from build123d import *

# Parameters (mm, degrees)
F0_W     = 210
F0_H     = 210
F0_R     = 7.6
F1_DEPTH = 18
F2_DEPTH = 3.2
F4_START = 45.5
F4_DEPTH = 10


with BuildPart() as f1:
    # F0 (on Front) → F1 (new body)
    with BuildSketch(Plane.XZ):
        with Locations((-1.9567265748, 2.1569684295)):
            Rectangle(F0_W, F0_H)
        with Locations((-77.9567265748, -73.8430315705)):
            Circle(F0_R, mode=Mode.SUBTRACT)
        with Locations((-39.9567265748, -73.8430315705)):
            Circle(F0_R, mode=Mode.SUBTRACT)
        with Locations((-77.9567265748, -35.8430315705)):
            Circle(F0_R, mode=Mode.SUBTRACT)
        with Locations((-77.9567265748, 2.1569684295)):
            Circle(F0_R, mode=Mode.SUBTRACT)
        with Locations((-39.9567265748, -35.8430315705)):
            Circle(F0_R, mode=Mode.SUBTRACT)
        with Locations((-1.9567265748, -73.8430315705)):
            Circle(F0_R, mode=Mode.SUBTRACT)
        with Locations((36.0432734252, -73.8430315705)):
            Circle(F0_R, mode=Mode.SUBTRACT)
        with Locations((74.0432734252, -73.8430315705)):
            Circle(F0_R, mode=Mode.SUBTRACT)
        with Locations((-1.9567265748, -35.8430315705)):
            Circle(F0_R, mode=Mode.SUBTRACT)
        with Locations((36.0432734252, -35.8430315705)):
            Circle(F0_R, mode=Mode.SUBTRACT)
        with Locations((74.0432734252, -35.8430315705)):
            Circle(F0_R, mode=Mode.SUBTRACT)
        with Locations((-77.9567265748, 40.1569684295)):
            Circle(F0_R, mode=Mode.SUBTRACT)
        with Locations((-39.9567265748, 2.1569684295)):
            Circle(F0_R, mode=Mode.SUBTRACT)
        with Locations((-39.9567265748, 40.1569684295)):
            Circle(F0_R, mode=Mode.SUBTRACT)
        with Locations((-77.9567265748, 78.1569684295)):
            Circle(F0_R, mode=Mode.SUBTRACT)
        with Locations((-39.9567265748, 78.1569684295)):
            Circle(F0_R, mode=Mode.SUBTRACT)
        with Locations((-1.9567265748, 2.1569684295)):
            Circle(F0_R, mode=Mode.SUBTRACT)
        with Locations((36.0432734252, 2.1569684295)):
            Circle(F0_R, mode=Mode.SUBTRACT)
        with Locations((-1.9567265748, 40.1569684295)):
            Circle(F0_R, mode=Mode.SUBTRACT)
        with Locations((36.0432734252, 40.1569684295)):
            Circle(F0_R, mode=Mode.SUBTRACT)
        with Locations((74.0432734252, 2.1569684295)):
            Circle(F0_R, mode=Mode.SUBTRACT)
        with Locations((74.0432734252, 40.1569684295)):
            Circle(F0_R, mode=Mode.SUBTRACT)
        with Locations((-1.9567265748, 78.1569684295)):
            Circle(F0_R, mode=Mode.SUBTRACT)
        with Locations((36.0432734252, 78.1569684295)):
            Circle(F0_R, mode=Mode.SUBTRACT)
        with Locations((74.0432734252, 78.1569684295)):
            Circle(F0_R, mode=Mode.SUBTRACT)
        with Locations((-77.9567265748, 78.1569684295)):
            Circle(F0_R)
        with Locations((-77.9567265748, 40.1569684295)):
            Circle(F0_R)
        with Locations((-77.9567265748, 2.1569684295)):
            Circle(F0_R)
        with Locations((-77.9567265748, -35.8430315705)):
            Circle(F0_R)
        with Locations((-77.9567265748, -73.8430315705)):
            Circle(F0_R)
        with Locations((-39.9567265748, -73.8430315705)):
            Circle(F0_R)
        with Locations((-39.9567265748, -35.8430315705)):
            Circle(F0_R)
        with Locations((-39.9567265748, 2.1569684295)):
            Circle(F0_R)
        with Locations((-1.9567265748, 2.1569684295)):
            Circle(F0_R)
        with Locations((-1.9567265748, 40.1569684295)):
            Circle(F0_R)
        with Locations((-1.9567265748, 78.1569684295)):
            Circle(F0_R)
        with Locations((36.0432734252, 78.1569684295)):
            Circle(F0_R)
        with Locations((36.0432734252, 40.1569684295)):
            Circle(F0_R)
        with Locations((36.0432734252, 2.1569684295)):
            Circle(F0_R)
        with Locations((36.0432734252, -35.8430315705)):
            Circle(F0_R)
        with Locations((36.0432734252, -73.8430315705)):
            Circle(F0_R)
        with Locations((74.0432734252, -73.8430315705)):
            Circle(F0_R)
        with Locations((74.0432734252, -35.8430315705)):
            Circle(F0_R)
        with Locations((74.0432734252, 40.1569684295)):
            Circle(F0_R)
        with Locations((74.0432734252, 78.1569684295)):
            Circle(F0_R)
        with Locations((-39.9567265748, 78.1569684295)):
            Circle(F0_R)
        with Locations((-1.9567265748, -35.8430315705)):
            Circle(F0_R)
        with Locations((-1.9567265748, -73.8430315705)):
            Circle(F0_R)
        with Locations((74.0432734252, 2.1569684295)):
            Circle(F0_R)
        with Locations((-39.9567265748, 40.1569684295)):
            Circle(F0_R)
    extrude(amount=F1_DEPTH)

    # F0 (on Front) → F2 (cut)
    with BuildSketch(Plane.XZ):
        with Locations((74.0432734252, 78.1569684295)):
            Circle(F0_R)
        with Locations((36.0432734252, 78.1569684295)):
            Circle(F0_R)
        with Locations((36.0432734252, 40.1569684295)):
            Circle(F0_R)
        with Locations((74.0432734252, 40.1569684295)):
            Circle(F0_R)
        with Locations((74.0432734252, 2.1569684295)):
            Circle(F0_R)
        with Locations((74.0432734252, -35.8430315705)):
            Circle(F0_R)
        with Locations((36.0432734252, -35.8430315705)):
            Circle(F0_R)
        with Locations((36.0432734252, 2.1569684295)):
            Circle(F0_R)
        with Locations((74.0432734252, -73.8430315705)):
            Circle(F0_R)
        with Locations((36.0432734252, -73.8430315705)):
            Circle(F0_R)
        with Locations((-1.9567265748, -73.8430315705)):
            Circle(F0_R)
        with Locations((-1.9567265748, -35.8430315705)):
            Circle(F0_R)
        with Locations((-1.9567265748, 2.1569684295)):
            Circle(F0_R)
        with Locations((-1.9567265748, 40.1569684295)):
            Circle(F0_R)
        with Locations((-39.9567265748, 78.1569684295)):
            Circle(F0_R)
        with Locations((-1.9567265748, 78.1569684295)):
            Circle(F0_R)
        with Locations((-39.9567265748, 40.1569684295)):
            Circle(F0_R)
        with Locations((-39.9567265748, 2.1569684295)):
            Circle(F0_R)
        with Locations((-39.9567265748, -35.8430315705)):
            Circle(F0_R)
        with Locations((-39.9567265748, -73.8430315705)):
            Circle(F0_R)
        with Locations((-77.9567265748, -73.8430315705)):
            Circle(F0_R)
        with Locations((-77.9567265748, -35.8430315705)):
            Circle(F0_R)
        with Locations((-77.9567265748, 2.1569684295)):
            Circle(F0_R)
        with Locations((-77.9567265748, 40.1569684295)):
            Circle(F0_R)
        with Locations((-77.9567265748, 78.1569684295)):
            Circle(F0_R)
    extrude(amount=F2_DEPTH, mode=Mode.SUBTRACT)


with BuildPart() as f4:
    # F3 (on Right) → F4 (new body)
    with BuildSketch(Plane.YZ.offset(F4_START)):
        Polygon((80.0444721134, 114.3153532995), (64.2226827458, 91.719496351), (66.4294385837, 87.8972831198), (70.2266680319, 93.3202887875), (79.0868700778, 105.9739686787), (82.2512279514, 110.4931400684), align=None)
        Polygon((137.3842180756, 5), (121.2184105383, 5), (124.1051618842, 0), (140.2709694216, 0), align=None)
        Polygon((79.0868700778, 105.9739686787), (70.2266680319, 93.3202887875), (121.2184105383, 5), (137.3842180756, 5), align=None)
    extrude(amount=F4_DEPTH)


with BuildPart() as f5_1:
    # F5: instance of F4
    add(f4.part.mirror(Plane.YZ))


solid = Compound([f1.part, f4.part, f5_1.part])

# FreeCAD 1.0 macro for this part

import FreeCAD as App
import Part
import Sketcher
Q = App.Units.Quantity


def add_polygon(sketch, points):
    """Adds a closed chain of lines whose ends are joined by coincident constraints."""
    first, n = sketch.GeometryCount, len(points)
    for a, b in zip(points, points[1:] + points[:1]):
        sketch.addGeometry(Part.LineSegment(App.Vector(*a, 0), App.Vector(*b, 0)), False)
    for i in range(n):
        sketch.addConstraint(Sketcher.Constraint("Coincident", first + i, 2, first + (i + 1) % n, 1))

doc = App.newDocument("Part")
body = doc.addObject("PartDesign::Body", "Body")

# Sketch on XZ plane
sketch1 = body.newObject("Sketcher::SketchObject", "Sketch")
sketch1.AttachmentSupport = (doc.getObject("XZ_Plane"), [""])
sketch1.MapMode = "FlatFace"
add_polygon(sketch1, [(-107, 107), (-107, -103), (103, -103), (103, 107)])  # lines 0-3
sketch1.addConstraint([
    Sketcher.Constraint("Vertical", 0),
    Sketcher.Constraint("Horizontal", 1),
    Sketcher.Constraint("Vertical", 2),
    Sketcher.Constraint("Horizontal", 3),
    Sketcher.Constraint("Equal", 3, 0),
    Sketcher.Constraint("DistanceX", 1, 1, 1, 2, 210.0),
    Sketcher.Constraint("DistanceY", 0, 2, -1, 1, 102.843032),
    Sketcher.Constraint("DistanceX", 0, 2, -1, 1, 106.956727),
])
pad1 = body.newObject("PartDesign::Pad", "Pad")
pad1.Profile = sketch1
pad1.Length = 18

# Sketch on XZ plane
sketch2 = body.newObject("Sketcher::SketchObject", "Sketch001")
sketch2.AttachmentSupport = (doc.getObject("XZ_Plane"), [""])
sketch2.MapMode = "FlatFace"
sketch2.addGeometry([
    Part.Circle(App.Vector(74, 78, 0), App.Vector(0, 0, 1), 8),  # 0
    Part.Circle(App.Vector(36, 78, 0), App.Vector(0, 0, 1), 8),  # 1
    Part.Circle(App.Vector(36, 40, 0), App.Vector(0, 0, 1), 8),  # 2
    Part.Circle(App.Vector(74, 40, 0), App.Vector(0, 0, 1), 8),  # 3
    Part.Circle(App.Vector(74, 2, 0), App.Vector(0, 0, 1), 8),  # 4
    Part.Circle(App.Vector(74, -36, 0), App.Vector(0, 0, 1), 8),  # 5
    Part.Circle(App.Vector(36, -36, 0), App.Vector(0, 0, 1), 8),  # 6
    Part.Circle(App.Vector(36, 2, 0), App.Vector(0, 0, 1), 8),  # 7
    Part.Circle(App.Vector(74, -74, 0), App.Vector(0, 0, 1), 8),  # 8
    Part.Circle(App.Vector(36, -74, 0), App.Vector(0, 0, 1), 8),  # 9
    Part.Circle(App.Vector(-2, -74, 0), App.Vector(0, 0, 1), 8),  # 10
    Part.Circle(App.Vector(-2, -36, 0), App.Vector(0, 0, 1), 8),  # 11
    Part.Circle(App.Vector(-2, 2, 0), App.Vector(0, 0, 1), 8),  # 12
    Part.Circle(App.Vector(-2, 40, 0), App.Vector(0, 0, 1), 8),  # 13
    Part.Circle(App.Vector(-40, 78, 0), App.Vector(0, 0, 1), 8),  # 14
    Part.Circle(App.Vector(-2, 78, 0), App.Vector(0, 0, 1), 8),  # 15
    Part.Circle(App.Vector(-40, 40, 0), App.Vector(0, 0, 1), 8),  # 16
    Part.Circle(App.Vector(-40, 2, 0), App.Vector(0, 0, 1), 8),  # 17
    Part.Circle(App.Vector(-40, -36, 0), App.Vector(0, 0, 1), 8),  # 18
    Part.Circle(App.Vector(-40, -74, 0), App.Vector(0, 0, 1), 8),  # 19
    Part.Circle(App.Vector(-78, -74, 0), App.Vector(0, 0, 1), 8),  # 20
    Part.Circle(App.Vector(-78, -36, 0), App.Vector(0, 0, 1), 8),  # 21
    Part.Circle(App.Vector(-78, 2, 0), App.Vector(0, 0, 1), 8),  # 22
    Part.Circle(App.Vector(-78, 40, 0), App.Vector(0, 0, 1), 8),  # 23
    Part.Circle(App.Vector(-78, 78, 0), App.Vector(0, 0, 1), 8),  # 24
], False)
sketch2.addConstraint([
    Sketcher.Constraint("Equal", 0, 1),
    Sketcher.Constraint("Equal", 1, 2),
    Sketcher.Constraint("Equal", 2, 3),
    Sketcher.Constraint("Equal", 3, 4),
    Sketcher.Constraint("Equal", 4, 5),
    Sketcher.Constraint("Equal", 5, 6),
    Sketcher.Constraint("Equal", 6, 7),
    Sketcher.Constraint("Equal", 7, 8),
    Sketcher.Constraint("Equal", 8, 9),
    Sketcher.Constraint("Equal", 9, 10),
    Sketcher.Constraint("Equal", 10, 11),
    Sketcher.Constraint("Equal", 11, 12),
    Sketcher.Constraint("Equal", 12, 13),
    Sketcher.Constraint("Equal", 13, 14),
    Sketcher.Constraint("Equal", 14, 15),
    Sketcher.Constraint("Equal", 15, 16),
    Sketcher.Constraint("Equal", 16, 17),
    Sketcher.Constraint("Equal", 17, 18),
    Sketcher.Constraint("Equal", 18, 19),
    Sketcher.Constraint("Equal", 19, 20),
    Sketcher.Constraint("Equal", 20, 21),
    Sketcher.Constraint("Equal", 21, 22),
    Sketcher.Constraint("Equal", 22, 23),
    Sketcher.Constraint("Equal", 23, 24),
    Sketcher.Constraint("Horizontal", 0, 3, 1, 3),
    Sketcher.Constraint("Horizontal", 2, 3, 3, 3),
    Sketcher.Constraint("Horizontal", 5, 3, 6, 3),
    Sketcher.Constraint("Horizontal", 4, 3, 7, 3),
    Sketcher.Constraint("Horizontal", 8, 3, 9, 3),
    Sketcher.Constraint("Horizontal", 9, 3, 10, 3),
    Sketcher.Constraint("Horizontal", 6, 3, 11, 3),
    Sketcher.Constraint("Horizontal", 7, 3, 12, 3),
    Sketcher.Constraint("Horizontal", 3, 3, 13, 3),
    Sketcher.Constraint("Horizontal", 1, 3, 14, 3),
    Sketcher.Constraint("Horizontal", 14, 3, 15, 3),
    Sketcher.Constraint("Horizontal", 13, 3, 16, 3),
    Sketcher.Constraint("Horizontal", 12, 3, 17, 3),
    Sketcher.Constraint("Horizontal", 11, 3, 18, 3),
    Sketcher.Constraint("Horizontal", 10, 3, 19, 3),
    Sketcher.Constraint("Horizontal", 19, 3, 20, 3),
    Sketcher.Constraint("Horizontal", 18, 3, 21, 3),
    Sketcher.Constraint("Horizontal", 17, 3, 22, 3),
    Sketcher.Constraint("Horizontal", 16, 3, 23, 3),
    Sketcher.Constraint("Horizontal", 15, 3, 24, 3),
    Sketcher.Constraint("Vertical", 1, 3, 2, 3),
    Sketcher.Constraint("Vertical", 0, 3, 3, 3),
    Sketcher.Constraint("Vertical", 3, 3, 4, 3),
    Sketcher.Constraint("Vertical", 4, 3, 5, 3),
    Sketcher.Constraint("Vertical", 2, 3, 6, 3),
    Sketcher.Constraint("Vertical", 6, 3, 7, 3),
    Sketcher.Constraint("Vertical", 5, 3, 8, 3),
    Sketcher.Constraint("Vertical", 7, 3, 9, 3),
    Sketcher.Constraint("Vertical", 10, 3, 11, 3),
    Sketcher.Constraint("Vertical", 11, 3, 12, 3),
    Sketcher.Constraint("Vertical", 12, 3, 13, 3),
    Sketcher.Constraint("Vertical", 13, 3, 15, 3),
    Sketcher.Constraint("Vertical", 14, 3, 16, 3),
    Sketcher.Constraint("Vertical", 16, 3, 17, 3),
    Sketcher.Constraint("Vertical", 17, 3, 18, 3),
    Sketcher.Constraint("Vertical", 18, 3, 19, 3),
    Sketcher.Constraint("Vertical", 20, 3, 21, 3),
    Sketcher.Constraint("Vertical", 21, 3, 22, 3),
    Sketcher.Constraint("Vertical", 22, 3, 23, 3),
    Sketcher.Constraint("Vertical", 23, 3, 24, 3),
    Sketcher.Constraint("Diameter", 0, 15.2),
    Sketcher.Constraint("DistanceX", 1, 3, 0, 3, 38.0),
    Sketcher.Constraint("DistanceY", 2, 3, 1, 3, 38.0),
    Sketcher.Constraint("DistanceY", 4, 3, 3, 3, 38.0),
    Sketcher.Constraint("DistanceY", 5, 3, 4, 3, 38.0),
    Sketcher.Constraint("DistanceY", 8, 3, 5, 3, 38.0),
    Sketcher.Constraint("DistanceX", 10, 3, 9, 3, 38.0),
    Sketcher.Constraint("DistanceX", 14, 3, 13, 3, 38.0),
    Sketcher.Constraint("DistanceX", 20, 3, 19, 3, 38.0),
    Sketcher.Constraint("DistanceY", -1, 1, 0, 3, 78.156968),
    Sketcher.Constraint("DistanceX", -1, 1, 0, 3, 74.043273),
])
pocket1 = body.newObject("PartDesign::Pocket", "Pocket")
pocket1.Profile = sketch2
pocket1.Length = 3.2
pocket1.Reversed = True
body2 = doc.addObject("PartDesign::Body", "Body001")

# Sketch on YZ plane
sketch3 = body2.newObject("Sketcher::SketchObject", "Sketch002")
sketch3.AttachmentSupport = (doc.getObject("YZ_Plane001"), [""])
sketch3.MapMode = "FlatFace"
sketch3.AttachmentOffset = App.Placement(App.Vector(0, 0, 45.5), App.Rotation())
add_polygon(sketch3, [(80, 114.3), (64.2, 91.7), (66.4, 87.9), (70.2, 93.3), (121.2, 5), (124.1, 0), (140.3, 0), (137.4, 5), (79.1, 106), (82.3, 110.5)])  # lines 0-9
sketch3.addConstraint([
    Sketcher.Constraint("Horizontal", 5),
    Sketcher.Constraint("PointOnObject", 4, 2, -1),
    Sketcher.Constraint("Parallel", 0, 2),
    Sketcher.Constraint("Parallel", 1, 3),
    Sketcher.Constraint("Parallel", 3, 4),
    Sketcher.Constraint("Parallel", 4, 6),
    Sketcher.Constraint("Parallel", 6, 7),
    Sketcher.Constraint("Parallel", 2, 8),
    Sketcher.Constraint("Parallel", 7, 9),
    Sketcher.Constraint("Horizontal", 3, 2, 6, 2),
    Sketcher.Constraint("Equal", 1, 9),
    Sketcher.Constraint("Angle", 0, Q("-125 deg")),
    Sketcher.Constraint("Angle", 1, Q("-60 deg")),
    Sketcher.Constraint("DistanceY", -1, 1, 3, 2, 5.0),
    Sketcher.Constraint("DistanceX", 2, 2, 5, 2, 70.044301),
    Sketcher.Constraint("Distance", 1, 4.413512),
    Sketcher.Constraint("Distance", 8, 5.51689),
    Sketcher.Constraint("DistanceX", 5, 1, 5, 2, 16.165808),
    Sketcher.Constraint("DistanceX", -1, 1, 1, 2, 66.429439),
    Sketcher.Constraint("DistanceX", -1, 1, 2, 2, 70.226668),
])
pad2 = body2.newObject("PartDesign::Pad", "Pad001")
pad2.Profile = sketch3
pad2.Length = 10
body3 = doc.addObject("PartDesign::Body", "Body002")
doc.recompute()

mirroring = doc.addObject("Part::Mirroring", "Mirroring")
mirroring.Source = body2
mirroring.Base = App.Vector(0, 0, 0)
mirroring.Normal = App.Vector(1, 0, 0)
body3.BaseFeature = mirroring
doc.recompute()
mirroring.Visibility = False

doc.recompute()
